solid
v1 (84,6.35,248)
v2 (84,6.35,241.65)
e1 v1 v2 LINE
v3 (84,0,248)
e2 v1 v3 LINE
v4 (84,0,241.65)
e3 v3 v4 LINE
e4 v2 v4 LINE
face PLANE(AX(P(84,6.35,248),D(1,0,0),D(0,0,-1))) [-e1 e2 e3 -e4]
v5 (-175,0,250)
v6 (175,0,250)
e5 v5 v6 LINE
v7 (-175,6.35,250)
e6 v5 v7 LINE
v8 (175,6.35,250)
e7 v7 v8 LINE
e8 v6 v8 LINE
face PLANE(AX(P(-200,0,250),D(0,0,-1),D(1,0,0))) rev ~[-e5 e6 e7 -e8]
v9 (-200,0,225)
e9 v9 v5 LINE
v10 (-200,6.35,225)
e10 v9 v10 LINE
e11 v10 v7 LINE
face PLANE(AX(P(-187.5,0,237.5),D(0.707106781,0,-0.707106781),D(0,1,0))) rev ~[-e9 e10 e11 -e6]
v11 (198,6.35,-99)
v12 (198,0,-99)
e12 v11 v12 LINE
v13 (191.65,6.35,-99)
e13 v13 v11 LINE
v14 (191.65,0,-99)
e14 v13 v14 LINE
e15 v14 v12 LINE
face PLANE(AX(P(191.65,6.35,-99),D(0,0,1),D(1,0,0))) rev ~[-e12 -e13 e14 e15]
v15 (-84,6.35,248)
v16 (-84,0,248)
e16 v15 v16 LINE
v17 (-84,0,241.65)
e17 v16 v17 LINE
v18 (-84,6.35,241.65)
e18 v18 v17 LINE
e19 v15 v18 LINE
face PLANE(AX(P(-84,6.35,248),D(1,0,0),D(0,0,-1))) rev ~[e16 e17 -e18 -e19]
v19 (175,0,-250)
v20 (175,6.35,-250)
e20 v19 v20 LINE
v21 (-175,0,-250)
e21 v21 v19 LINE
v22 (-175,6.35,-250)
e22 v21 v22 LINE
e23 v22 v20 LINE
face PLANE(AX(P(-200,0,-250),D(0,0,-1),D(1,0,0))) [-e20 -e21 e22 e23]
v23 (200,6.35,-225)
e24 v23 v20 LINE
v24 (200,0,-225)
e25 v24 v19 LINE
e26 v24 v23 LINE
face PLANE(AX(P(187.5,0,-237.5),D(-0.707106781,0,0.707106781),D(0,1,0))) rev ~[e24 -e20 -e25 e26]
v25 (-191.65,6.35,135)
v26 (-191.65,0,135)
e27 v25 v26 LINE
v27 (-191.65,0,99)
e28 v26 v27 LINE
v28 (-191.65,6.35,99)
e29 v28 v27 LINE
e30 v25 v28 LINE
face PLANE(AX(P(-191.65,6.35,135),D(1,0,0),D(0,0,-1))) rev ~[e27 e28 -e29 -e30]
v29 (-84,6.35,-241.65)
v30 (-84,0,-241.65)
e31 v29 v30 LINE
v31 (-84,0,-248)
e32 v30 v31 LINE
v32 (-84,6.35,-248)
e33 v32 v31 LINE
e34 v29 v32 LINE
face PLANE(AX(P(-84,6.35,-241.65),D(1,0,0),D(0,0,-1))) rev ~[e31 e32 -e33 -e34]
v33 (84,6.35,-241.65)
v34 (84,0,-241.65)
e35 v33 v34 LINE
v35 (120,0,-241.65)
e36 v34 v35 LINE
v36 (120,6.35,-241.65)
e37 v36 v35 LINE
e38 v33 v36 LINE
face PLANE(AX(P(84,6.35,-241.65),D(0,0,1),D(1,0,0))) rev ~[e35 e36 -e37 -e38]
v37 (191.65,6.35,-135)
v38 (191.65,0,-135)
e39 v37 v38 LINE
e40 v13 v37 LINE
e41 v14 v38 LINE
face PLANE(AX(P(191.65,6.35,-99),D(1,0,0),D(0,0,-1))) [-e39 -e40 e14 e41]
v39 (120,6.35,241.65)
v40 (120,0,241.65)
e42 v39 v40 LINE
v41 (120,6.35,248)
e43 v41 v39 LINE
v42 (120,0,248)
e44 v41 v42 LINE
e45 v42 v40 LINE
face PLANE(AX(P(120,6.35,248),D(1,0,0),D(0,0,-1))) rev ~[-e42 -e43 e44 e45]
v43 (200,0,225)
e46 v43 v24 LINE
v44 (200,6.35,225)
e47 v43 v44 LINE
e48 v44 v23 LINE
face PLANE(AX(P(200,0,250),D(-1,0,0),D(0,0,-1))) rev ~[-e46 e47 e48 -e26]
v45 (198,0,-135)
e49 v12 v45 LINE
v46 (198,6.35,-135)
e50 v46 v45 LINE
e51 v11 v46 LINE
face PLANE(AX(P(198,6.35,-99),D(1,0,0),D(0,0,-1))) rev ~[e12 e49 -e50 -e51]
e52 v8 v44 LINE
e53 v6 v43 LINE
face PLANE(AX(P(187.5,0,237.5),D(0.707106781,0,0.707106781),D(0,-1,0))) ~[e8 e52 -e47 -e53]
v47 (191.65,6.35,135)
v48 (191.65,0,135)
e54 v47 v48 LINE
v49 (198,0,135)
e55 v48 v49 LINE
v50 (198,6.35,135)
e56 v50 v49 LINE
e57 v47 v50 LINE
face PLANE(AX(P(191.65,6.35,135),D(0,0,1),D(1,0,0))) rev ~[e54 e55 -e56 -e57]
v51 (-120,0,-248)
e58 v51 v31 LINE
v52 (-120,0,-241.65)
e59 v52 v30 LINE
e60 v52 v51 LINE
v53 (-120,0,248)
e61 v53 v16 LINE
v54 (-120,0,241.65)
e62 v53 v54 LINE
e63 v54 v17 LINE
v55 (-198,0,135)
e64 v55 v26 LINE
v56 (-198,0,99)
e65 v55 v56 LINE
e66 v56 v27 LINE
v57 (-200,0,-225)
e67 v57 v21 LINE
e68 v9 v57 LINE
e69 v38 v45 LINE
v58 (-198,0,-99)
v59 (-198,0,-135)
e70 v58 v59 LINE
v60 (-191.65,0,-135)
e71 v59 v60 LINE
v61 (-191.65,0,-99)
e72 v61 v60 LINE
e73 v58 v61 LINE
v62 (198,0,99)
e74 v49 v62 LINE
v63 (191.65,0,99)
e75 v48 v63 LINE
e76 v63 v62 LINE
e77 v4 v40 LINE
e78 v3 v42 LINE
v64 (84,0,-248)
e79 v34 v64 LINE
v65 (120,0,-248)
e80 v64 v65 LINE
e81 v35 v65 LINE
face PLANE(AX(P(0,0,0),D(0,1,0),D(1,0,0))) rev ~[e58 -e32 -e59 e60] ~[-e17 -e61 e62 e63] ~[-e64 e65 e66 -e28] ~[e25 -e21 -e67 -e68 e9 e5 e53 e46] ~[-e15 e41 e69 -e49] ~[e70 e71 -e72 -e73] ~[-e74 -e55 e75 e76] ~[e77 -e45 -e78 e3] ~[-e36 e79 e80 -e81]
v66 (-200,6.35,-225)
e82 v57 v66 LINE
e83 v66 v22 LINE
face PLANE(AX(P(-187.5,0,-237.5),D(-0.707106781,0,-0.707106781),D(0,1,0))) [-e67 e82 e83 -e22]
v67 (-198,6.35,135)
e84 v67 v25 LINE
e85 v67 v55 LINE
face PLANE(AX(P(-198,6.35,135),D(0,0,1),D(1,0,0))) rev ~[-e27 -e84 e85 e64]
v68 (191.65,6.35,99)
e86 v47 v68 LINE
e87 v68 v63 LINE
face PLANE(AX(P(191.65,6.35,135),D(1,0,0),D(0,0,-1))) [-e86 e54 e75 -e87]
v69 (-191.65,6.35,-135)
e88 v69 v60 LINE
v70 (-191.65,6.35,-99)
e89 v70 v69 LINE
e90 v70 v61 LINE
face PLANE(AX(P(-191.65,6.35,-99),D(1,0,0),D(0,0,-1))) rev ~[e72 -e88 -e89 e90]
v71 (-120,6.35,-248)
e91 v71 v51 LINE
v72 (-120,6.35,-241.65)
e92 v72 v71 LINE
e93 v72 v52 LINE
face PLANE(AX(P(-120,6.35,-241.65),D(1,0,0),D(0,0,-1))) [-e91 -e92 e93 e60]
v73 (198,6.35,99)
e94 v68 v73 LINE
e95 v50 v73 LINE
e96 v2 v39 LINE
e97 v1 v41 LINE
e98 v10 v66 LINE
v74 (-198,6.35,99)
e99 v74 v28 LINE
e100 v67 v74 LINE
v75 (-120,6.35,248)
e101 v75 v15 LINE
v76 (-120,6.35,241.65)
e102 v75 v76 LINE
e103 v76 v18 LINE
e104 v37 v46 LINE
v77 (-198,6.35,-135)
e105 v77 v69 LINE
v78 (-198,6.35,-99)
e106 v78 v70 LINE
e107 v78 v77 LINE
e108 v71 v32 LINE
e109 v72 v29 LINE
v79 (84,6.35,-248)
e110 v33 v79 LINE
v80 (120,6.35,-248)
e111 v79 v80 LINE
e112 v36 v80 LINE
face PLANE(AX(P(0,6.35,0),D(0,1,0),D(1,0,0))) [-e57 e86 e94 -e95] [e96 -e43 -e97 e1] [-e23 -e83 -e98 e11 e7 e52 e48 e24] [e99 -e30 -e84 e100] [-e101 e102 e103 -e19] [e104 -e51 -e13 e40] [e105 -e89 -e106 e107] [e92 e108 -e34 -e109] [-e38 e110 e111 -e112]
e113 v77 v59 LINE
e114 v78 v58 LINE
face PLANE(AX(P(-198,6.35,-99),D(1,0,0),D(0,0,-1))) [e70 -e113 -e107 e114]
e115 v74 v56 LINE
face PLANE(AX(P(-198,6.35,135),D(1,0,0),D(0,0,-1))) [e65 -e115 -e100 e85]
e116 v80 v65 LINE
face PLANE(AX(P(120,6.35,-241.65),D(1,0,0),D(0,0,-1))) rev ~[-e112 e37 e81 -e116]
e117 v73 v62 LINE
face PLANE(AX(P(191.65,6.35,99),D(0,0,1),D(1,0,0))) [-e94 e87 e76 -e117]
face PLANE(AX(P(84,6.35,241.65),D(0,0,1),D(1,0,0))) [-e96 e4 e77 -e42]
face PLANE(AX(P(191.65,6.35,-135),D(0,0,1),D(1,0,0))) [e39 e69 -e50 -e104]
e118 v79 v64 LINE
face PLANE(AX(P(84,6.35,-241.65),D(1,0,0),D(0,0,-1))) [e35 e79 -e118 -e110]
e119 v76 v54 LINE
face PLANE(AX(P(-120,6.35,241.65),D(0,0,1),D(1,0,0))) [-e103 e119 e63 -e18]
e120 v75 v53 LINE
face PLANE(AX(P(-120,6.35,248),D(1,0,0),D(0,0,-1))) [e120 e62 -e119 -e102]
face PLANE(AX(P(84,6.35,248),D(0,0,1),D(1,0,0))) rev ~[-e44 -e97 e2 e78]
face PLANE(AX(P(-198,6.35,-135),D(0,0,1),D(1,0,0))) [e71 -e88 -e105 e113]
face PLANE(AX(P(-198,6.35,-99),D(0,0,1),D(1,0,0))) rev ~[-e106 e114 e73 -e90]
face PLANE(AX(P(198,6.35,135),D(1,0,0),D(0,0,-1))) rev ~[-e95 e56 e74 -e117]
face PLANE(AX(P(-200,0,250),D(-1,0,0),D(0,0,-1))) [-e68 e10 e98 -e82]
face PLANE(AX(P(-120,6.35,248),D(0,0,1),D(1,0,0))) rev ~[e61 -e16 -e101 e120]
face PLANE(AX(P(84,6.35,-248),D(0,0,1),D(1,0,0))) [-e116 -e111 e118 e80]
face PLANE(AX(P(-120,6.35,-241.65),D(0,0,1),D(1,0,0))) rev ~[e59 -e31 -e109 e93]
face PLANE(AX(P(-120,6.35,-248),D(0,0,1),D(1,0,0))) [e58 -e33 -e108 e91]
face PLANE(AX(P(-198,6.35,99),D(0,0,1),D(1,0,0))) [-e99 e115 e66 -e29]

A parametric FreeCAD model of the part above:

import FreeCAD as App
import Part
import Sketcher
Q = App.Units.Quantity


def edges_at(feature, points):
    """Names of the edges that pass closest to the given points."""
    edges = feature.Shape.Edges
    near = lambda p: min(range(len(edges)), key=lambda i: edges[i].distToShape(Part.Vertex(*p))[0])
    return sorted({f"Edge{near(p) + 1}" for p in points})


def add_polygon(sketch, points):
    """Adds a closed chain of lines whose ends are joined by coincident constraints."""
    first, n = sketch.GeometryCount, len(points)
    for a, b in zip(points, points[1:] + points[:1]):
        sketch.addGeometry(Part.LineSegment(App.Vector(*a, 0), App.Vector(*b, 0)), False)
    for i in range(n):
        sketch.addConstraint(Sketcher.Constraint("Coincident", first + i, 2, first + (i + 1) % n, 1))

doc = App.newDocument("Part")
params = doc.addObject("Spreadsheet::Sheet", "Params")
for row, (alias, value) in enumerate([
    ("sketch1_width", "400 mm"),
    ("sketch1_height", "500 mm"),
    ("pad1_length", "6.35 mm"),
    ("chamfer_size", "25 mm"),
    ("sketch2_width", "36 mm"),
    ("sketch2_width2", "6.35 mm"),
], start=1):
    params.set(f"A{row}", alias)
    params.set(f"B{row}", "=" + value)
    params.setAlias(f"B{row}", alias)

body = doc.addObject("PartDesign::Body", "Body")

sketch1 = body.newObject("Sketcher::SketchObject", "Sketch")
sketch1.AttachmentSupport = (doc.getObject("XZ_Plane"), [""])
sketch1.MapMode = "FlatFace"
add_polygon(sketch1, [(-200, -250), (-200, 250), (200, 250), (200, -250)])
sketch1.addConstraint([
    Sketcher.Constraint("Vertical", 0),
    Sketcher.Constraint("Horizontal", 1),
    Sketcher.Constraint("Vertical", 2),
    Sketcher.Constraint("Horizontal", 3),
    Sketcher.Constraint("Symmetric", 0, 2, 2, 2, -1, 1),
    Sketcher.Constraint("DistanceX", 1, 1, 1, 2, Q("400 mm")),
    Sketcher.Constraint("DistanceY", 0, 1, 0, 2, Q("500 mm")),
])
sketch1.setExpression("Constraints[9]", "Params.sketch1_width")
sketch1.setExpression("Constraints[10]", "Params.sketch1_height")
pad1 = body.newObject("PartDesign::Pad", "Pad")
pad1.Profile = sketch1
pad1.setExpression("Length", "Params.pad1_length")
pad1.Reversed = True
doc.recompute()

chamfer = body.newObject("PartDesign::Chamfer", "Chamfer")
chamfer.Base = (pad1, edges_at(pad1, [
    (200, 3.175, 250),
    (-200, 3.175, 250),
    (-200, 3.175, -250),
    (200, 3.175, -250),
]))
chamfer.setExpression("Size", "Params.chamfer_size")

sketch2 = body.newObject("Sketcher::SketchObject", "Sketch001")
sketch2.AttachmentSupport = (doc.getObject("XZ_Plane"), [""])
sketch2.MapMode = "FlatFace"
sketch2.AttachmentOffset = App.Placement(App.Vector(0, 0, -6.35), App.Rotation())
add_polygon(sketch2, [(191.65, -135), (191.65, -99), (198, -99), (198, -135)])
add_polygon(sketch2, [(84, 241.65), (84, 248), (120, 248), (120, 241.65)])
add_polygon(sketch2, [(-120, 241.65), (-120, 248), (-84, 248), (-84, 241.65)])
add_polygon(sketch2, [(-120, -248), (-120, -241.65), (-84, -241.65), (-84, -248)])
add_polygon(sketch2, [(84, -248), (84, -241.65), (120, -241.65), (120, -248)])
add_polygon(sketch2, [(191.65, 99), (191.65, 135), (198, 135), (198, 99)])
add_polygon(sketch2, [(-198, 99), (-198, 135), (-191.65, 135), (-191.65, 99)])
add_polygon(sketch2, [(-198, -135), (-198, -99), (-191.65, -99), (-191.65, -135)])
sketch2.addConstraint([
    Sketcher.Constraint("Vertical", 0),
    Sketcher.Constraint("Horizontal", 1),
    Sketcher.Constraint("Vertical", 2),
    Sketcher.Constraint("Horizontal", 3),
    Sketcher.Constraint("Vertical", 4),
    Sketcher.Constraint("Horizontal", 5),
    Sketcher.Constraint("Vertical", 6),
    Sketcher.Constraint("Horizontal", 7),
    Sketcher.Constraint("Vertical", 8),
    Sketcher.Constraint("Horizontal", 9),
    Sketcher.Constraint("Vertical", 10),
    Sketcher.Constraint("Horizontal", 11),
    Sketcher.Constraint("Vertical", 12),
    Sketcher.Constraint("Horizontal", 13),
    Sketcher.Constraint("Vertical", 14),
    Sketcher.Constraint("Horizontal", 15),
    Sketcher.Constraint("Vertical", 16),
    Sketcher.Constraint("Horizontal", 17),
    Sketcher.Constraint("Vertical", 18),
    Sketcher.Constraint("Horizontal", 19),
    Sketcher.Constraint("Vertical", 20),
    Sketcher.Constraint("Horizontal", 21),
    Sketcher.Constraint("Vertical", 22),
    Sketcher.Constraint("Horizontal", 23),
    Sketcher.Constraint("Vertical", 24),
    Sketcher.Constraint("Horizontal", 25),
    Sketcher.Constraint("Vertical", 26),
    Sketcher.Constraint("Horizontal", 27),
    Sketcher.Constraint("Vertical", 28),
    Sketcher.Constraint("Horizontal", 29),
    Sketcher.Constraint("Vertical", 30),
    Sketcher.Constraint("Horizontal", 31),
    Sketcher.Constraint("Symmetric", 6, 2, 12, 2, -1, 1),
    Sketcher.Constraint("Symmetric", 4, 2, 14, 2, -1, 1),
    Sketcher.Constraint("Symmetric", 10, 2, 16, 2, -1, 1),
    Sketcher.Constraint("Symmetric", 8, 2, 18, 2, -1, 1),
    Sketcher.Constraint("Symmetric", 2, 2, 24, 2, -1, 1),
    Sketcher.Constraint("Symmetric", 0, 2, 26, 2, -1, 1),
    Sketcher.Constraint("Symmetric", 22, 2, 28, 2, -1, 1),
    Sketcher.Constraint("Symmetric", 20, 2, 30, 2, -1, 1),
    Sketcher.Constraint("Symmetric", 5, 2, 8, 2, -2),
    Sketcher.Constraint("Symmetric", 7, 2, 10, 2, -2),
    Sketcher.Constraint("Symmetric", 21, 2, 24, 2, -2),
    Sketcher.Constraint("Symmetric", 23, 2, 26, 2, -2),
    Sketcher.Constraint("Equal", 19, 0),
    Sketcher.Constraint("Equal", 31, 4),
    Sketcher.Constraint("DistanceX", 5, 1, 5, 2, Q("36 mm")),
    Sketcher.Constraint("DistanceY", 0, 2, -1, 1, Q("99 mm")),
    Sketcher.Constraint("DistanceX", -1, 1, 1, 2, Q("198 mm")),
    Sketcher.Constraint("DistanceX", -1, 1, 4, 2, Q("84 mm")),
    Sketcher.Constraint("DistanceY", -1, 1, 4, 2, Q("248 mm")),
    Sketcher.Constraint("DistanceX", 1, 1, 1, 2, Q("6.35 mm")),
])
sketch2.setExpression("Constraints[78]", "Params.sketch2_width")
sketch2.setExpression("Constraints[83]", "Params.sketch2_width2")
pocket1 = body.newObject("PartDesign::Pocket", "Pocket")
pocket1.Profile = sketch2
pocket1.Type = "ThroughAll"
pocket1.Reversed = True

doc.recompute()
